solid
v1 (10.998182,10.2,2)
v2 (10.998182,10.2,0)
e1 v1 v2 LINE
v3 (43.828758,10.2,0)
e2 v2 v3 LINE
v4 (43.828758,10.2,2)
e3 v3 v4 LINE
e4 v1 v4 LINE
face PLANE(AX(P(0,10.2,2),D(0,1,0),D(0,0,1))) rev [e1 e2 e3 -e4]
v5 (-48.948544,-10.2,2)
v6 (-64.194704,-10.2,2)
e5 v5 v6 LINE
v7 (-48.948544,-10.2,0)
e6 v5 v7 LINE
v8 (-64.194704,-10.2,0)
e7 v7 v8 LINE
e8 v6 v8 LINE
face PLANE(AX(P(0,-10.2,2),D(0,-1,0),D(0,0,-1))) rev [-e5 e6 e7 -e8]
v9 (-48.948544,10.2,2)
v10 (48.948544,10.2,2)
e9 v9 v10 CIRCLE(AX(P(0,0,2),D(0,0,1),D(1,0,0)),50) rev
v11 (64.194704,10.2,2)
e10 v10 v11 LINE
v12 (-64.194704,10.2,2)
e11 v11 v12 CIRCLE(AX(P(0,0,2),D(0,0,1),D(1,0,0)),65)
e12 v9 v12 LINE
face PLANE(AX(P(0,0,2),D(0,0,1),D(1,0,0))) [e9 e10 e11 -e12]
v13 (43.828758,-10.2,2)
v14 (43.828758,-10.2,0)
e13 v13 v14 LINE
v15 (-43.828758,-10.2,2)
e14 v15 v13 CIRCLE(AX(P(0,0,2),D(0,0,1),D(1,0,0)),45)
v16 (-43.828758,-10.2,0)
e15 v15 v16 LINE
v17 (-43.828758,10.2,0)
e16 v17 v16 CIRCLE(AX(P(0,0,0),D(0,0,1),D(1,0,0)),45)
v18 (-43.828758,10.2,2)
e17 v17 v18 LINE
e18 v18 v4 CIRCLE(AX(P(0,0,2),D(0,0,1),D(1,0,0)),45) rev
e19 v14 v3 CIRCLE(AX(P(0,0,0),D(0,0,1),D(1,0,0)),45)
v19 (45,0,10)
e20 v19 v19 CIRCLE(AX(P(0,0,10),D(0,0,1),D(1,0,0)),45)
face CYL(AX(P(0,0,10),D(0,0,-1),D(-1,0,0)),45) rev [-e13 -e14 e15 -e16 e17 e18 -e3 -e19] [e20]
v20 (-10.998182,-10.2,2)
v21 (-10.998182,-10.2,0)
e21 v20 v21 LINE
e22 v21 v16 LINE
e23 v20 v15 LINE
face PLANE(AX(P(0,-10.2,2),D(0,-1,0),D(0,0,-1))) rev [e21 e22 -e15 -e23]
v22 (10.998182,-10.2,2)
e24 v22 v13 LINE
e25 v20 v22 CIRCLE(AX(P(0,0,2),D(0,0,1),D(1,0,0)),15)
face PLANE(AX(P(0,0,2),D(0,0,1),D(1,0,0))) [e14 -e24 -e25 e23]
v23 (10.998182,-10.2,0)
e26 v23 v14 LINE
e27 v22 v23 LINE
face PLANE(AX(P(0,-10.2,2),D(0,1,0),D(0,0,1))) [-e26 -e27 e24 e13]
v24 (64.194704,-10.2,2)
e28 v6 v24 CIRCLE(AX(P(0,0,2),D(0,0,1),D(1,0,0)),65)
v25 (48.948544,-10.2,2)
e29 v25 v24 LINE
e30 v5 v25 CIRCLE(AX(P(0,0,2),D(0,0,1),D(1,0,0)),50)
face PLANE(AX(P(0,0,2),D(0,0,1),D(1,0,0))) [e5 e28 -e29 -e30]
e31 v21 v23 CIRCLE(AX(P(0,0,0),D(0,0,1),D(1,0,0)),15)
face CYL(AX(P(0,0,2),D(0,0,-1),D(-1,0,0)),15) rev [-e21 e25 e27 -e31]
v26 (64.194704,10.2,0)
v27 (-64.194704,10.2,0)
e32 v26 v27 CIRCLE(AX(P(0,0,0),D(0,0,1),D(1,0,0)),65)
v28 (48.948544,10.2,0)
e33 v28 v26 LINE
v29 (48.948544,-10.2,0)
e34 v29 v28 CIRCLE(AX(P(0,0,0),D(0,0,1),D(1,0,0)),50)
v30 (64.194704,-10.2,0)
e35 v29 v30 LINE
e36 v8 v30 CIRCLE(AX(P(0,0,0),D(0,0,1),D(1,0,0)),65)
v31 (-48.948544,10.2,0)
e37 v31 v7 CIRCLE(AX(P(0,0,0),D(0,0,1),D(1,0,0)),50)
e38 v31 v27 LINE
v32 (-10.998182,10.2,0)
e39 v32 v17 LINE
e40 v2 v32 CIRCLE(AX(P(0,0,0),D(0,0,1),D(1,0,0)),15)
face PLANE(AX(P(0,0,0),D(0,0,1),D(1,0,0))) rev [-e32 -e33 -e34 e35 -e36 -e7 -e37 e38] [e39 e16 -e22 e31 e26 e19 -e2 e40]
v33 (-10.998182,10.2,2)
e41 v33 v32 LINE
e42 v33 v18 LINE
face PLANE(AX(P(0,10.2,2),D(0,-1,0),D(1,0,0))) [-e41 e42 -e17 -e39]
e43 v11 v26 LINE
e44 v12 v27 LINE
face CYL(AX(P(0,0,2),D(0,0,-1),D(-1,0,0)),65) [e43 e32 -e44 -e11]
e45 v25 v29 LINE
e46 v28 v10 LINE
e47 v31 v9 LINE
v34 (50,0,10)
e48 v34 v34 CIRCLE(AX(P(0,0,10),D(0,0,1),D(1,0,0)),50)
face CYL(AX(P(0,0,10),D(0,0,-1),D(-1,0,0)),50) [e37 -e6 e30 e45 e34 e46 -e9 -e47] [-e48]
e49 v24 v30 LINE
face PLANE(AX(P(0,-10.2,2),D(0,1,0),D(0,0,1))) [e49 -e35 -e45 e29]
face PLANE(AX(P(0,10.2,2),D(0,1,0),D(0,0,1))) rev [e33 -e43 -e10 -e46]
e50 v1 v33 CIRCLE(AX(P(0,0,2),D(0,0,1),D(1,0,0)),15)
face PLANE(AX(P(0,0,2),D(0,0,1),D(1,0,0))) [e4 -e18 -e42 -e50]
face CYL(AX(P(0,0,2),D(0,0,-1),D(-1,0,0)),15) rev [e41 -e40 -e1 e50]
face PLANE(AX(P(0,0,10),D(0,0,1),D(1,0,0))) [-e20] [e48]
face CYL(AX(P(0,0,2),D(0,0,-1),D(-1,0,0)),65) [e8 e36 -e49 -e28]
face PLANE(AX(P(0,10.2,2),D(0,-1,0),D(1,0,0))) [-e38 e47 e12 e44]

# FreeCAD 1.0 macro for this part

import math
import FreeCAD as App
import Part
import Sketcher
from FreeCAD import Vector
Q = App.Units.Quantity

doc = App.newDocument("Part")
body = doc.addObject("PartDesign::Body", "Body")

sketch1 = doc.addObject("Sketcher::SketchObject", "Sketch")
body.addObject(sketch1)
sketch1.AttachmentSupport = (doc.XY_Plane, [""])
sketch1.MapMode = "FlatFace"
sketch1.addGeometry([
    Part.LineSegment(Vector(-64, 10, 0), Vector(-11, 10, 0)),
    Part.ArcOfCircle(Part.Circle(Vector(0, 0, 0), Vector(0, 0, 1), 15), math.radians(43), math.radians(137)),
    Part.LineSegment(Vector(11, 10, 0), Vector(64, 10, 0)),
    Part.ArcOfCircle(Part.Circle(Vector(0, 0, 0), Vector(0, 0, 1), 65), math.radians(9), math.radians(171)),
], False)
sketch1.addConstraint([
    Sketcher.Constraint("Coincident", 0, 2, 1, 2),
    Sketcher.Constraint("Coincident", 1, 1, 2, 1),
    Sketcher.Constraint("Coincident", 2, 2, 3, 1),
    Sketcher.Constraint("Coincident", 3, 2, 0, 1),
    Sketcher.Constraint("Horizontal", 0),
    Sketcher.Constraint("Horizontal", 2),
    Sketcher.Constraint("Coincident", 1, 3, -1, 1),
    Sketcher.Constraint("Coincident", 3, 3, -1, 1),
    Sketcher.Constraint("Horizontal", 0, 2, 1, 1),
    Sketcher.Constraint("Radius", 1, Q("15 mm")),
    Sketcher.Constraint("Radius", 3, Q("65 mm")),
    Sketcher.Constraint("DistanceY", -1, 1, 0, 2, Q("10.2 mm")),
])
pad1 = doc.addObject("PartDesign::Pad", "Pad")
body.addObject(pad1)
pad1.Profile = sketch1
pad1.Length = 2
body2 = doc.addObject("PartDesign::Body", "Body001")

sketch2 = doc.addObject("Sketcher::SketchObject", "Sketch001")
body2.addObject(sketch2)
sketch2.AttachmentSupport = (doc.getObject("XY_Plane001"), [""])
sketch2.MapMode = "FlatFace"
sketch2.addGeometry([
    Part.LineSegment(Vector(-11, -10, 0), Vector(-64, -10, 0)),
    Part.ArcOfCircle(Part.Circle(Vector(0, 0, 0), Vector(0, 0, 1), 65), math.radians(-171), math.radians(-9)),
    Part.LineSegment(Vector(64, -10, 0), Vector(11, -10, 0)),
    Part.ArcOfCircle(Part.Circle(Vector(0, 0, 0), Vector(0, 0, 1), 15), math.radians(-137), math.radians(-43)),
], False)
sketch2.addConstraint([
    Sketcher.Constraint("Coincident", 0, 2, 1, 1),
    Sketcher.Constraint("Coincident", 1, 2, 2, 1),
    Sketcher.Constraint("Coincident", 2, 2, 3, 2),
    Sketcher.Constraint("Coincident", 3, 1, 0, 1),
    Sketcher.Constraint("Horizontal", 0),
    Sketcher.Constraint("Horizontal", 2),
    Sketcher.Constraint("Coincident", 1, 3, -1, 1),
    Sketcher.Constraint("Coincident", 3, 3, -1, 1),
    Sketcher.Constraint("Horizontal", 0, 2, 1, 2),
    Sketcher.Constraint("Radius", 1, Q("65 mm")),
    Sketcher.Constraint("Radius", 3, Q("15 mm")),
    Sketcher.Constraint("DistanceY", 0, 2, -1, 1, Q("10.2 mm")),
])
pad2 = doc.addObject("PartDesign::Pad", "Pad001")
body2.addObject(pad2)
pad2.Profile = sketch2
pad2.Length = 2
body.AllowCompound = True
doc.recompute()

boolean = doc.addObject("PartDesign::Boolean", "Boolean")
body.addObject(boolean)
boolean.Type = "Fuse"
boolean.addObjects([body2])

sketch3 = doc.addObject("Sketcher::SketchObject", "Sketch002")
body.addObject(sketch3)
sketch3.AttachmentSupport = (doc.XY_Plane, [""])
sketch3.MapMode = "FlatFace"
sketch3.addGeometry([
    Part.Circle(Vector(0, 0, 0), Vector(0, 0, 1), 50),
    Part.Circle(Vector(0, 0, 0), Vector(0, 0, 1), 45),
], False)
sketch3.addConstraint([
    Sketcher.Constraint("Coincident", 0, 3, -1, 1),
    Sketcher.Constraint("Coincident", 1, 3, -1, 1),
    Sketcher.Constraint("Diameter", 0, Q("100 mm")),
    Sketcher.Constraint("Diameter", 1, Q("90 mm")),
])
pad3 = doc.addObject("PartDesign::Pad", "Pad002")
body.addObject(pad3)
pad3.Profile = sketch3
pad3.Length = 10

doc.recompute()
